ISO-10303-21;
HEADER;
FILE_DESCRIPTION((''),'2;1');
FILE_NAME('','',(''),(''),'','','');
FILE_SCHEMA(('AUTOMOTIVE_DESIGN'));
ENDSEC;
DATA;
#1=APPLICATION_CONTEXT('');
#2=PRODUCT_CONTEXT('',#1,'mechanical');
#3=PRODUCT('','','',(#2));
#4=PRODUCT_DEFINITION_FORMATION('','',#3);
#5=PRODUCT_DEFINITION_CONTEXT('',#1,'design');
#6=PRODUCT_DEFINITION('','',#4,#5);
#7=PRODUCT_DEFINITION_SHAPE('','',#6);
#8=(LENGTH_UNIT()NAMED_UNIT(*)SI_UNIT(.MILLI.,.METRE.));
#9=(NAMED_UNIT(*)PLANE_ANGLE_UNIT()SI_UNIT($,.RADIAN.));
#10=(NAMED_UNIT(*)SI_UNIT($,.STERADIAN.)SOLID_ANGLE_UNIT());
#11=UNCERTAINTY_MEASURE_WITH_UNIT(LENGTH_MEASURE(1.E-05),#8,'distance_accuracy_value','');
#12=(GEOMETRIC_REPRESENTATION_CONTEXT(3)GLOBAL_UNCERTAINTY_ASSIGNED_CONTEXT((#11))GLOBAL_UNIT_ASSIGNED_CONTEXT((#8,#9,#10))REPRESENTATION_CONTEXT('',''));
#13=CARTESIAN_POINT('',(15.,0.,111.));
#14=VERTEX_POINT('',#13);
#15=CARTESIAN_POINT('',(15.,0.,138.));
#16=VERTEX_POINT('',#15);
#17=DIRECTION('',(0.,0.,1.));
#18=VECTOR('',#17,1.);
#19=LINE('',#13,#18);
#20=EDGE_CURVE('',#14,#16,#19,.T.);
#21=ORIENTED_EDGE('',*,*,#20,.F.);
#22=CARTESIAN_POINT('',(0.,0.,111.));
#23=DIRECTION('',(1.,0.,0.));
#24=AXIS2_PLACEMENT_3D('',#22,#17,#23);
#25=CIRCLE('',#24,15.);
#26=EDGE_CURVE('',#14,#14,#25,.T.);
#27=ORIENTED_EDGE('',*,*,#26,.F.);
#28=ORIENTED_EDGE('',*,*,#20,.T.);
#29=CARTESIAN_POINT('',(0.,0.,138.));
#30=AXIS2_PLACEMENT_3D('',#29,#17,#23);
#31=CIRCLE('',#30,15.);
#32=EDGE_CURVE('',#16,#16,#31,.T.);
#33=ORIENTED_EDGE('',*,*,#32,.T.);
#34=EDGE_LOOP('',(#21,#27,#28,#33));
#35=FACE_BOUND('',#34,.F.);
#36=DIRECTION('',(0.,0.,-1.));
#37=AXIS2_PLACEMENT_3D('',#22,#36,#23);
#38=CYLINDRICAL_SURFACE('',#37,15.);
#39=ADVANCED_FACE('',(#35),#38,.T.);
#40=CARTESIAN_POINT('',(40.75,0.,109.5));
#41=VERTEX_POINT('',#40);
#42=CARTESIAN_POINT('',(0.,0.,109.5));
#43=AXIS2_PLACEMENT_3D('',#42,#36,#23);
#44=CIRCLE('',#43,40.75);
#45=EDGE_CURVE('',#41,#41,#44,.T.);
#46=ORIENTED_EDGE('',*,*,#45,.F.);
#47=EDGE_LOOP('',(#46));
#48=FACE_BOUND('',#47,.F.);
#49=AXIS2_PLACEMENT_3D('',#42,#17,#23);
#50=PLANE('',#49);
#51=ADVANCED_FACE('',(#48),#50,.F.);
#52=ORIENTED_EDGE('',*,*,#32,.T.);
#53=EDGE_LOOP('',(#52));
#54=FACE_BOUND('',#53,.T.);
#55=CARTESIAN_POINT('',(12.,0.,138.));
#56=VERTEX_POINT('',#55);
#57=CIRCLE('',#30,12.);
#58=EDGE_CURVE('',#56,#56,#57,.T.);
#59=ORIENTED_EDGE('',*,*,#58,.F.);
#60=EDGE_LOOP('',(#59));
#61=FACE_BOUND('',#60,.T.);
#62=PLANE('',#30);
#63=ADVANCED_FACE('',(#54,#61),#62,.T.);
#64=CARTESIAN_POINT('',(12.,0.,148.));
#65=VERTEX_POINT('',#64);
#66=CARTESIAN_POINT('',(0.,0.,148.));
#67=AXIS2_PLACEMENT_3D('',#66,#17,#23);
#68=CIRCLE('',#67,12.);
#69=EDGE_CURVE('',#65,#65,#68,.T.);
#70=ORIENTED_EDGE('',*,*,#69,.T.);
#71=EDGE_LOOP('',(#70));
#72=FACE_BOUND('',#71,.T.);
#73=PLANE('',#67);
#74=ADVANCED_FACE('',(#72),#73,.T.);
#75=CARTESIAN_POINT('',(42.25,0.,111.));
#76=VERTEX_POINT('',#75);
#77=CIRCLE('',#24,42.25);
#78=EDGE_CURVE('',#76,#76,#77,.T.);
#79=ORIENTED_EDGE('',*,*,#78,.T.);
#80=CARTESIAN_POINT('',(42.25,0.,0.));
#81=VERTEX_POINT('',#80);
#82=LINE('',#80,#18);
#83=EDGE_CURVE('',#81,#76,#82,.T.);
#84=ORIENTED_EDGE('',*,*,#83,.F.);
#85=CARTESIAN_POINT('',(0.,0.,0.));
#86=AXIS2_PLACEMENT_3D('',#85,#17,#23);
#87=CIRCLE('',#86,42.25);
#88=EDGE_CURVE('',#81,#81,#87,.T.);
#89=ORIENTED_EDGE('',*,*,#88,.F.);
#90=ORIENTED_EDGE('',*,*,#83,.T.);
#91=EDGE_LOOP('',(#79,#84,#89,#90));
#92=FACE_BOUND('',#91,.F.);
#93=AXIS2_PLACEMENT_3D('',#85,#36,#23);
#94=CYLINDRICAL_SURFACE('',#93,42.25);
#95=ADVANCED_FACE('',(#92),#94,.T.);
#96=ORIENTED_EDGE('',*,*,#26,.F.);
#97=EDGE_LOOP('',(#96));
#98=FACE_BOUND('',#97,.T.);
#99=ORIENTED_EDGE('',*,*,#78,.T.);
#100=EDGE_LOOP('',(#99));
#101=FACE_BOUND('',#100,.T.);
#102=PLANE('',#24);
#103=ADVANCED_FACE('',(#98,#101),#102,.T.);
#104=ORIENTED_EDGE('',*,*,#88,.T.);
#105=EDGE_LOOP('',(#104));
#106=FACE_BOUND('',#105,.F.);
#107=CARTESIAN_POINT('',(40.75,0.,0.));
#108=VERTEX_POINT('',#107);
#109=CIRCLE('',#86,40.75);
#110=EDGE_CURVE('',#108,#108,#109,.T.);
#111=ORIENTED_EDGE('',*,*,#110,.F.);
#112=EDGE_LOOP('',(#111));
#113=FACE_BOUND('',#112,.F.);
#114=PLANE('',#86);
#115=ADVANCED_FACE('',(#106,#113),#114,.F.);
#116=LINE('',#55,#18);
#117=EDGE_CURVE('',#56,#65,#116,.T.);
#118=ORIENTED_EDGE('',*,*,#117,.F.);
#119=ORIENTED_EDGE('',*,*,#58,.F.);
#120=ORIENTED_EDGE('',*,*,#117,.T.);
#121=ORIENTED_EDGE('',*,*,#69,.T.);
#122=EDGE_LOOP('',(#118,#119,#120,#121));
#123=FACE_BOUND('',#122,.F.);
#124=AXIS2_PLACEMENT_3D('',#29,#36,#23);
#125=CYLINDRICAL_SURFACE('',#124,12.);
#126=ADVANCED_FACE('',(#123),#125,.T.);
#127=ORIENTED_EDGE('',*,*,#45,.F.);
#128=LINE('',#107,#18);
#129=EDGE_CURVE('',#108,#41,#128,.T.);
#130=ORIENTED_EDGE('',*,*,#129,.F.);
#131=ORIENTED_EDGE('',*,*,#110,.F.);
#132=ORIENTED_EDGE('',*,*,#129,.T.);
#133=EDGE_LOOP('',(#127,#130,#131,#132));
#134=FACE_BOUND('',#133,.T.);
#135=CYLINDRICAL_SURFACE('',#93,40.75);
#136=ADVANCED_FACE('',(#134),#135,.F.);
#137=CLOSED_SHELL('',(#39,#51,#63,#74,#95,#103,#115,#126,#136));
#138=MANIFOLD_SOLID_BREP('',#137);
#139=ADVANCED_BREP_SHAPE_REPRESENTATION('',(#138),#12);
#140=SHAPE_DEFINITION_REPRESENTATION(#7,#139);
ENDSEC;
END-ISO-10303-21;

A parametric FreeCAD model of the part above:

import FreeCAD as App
import Part
import Sketcher

V = App.Vector
Q = App.Units.Quantity


def faces_at(feature, points):
    """Names of the faces that lie closest to the given points."""
    faces = feature.Shape.Faces
    near = lambda p: min(range(len(faces)), key=lambda i: faces[i].distToShape(Part.Vertex(*p))[0])
    return sorted({f"Face{near(p) + 1}" for p in points})

doc = App.newDocument("Part")
body = doc.addObject("PartDesign::Body", "Body")

sketch1 = body.newObject("Sketcher::SketchObject", "Sketch")
sketch1.AttachmentSupport = (doc.getObject("XY_Plane"), [""])
sketch1.MapMode = "FlatFace"
sketch1.addGeometry(Part.Circle(V(0, 0, 0), V(0, 0, 1), 42), False)
sketch1.addConstraint(Sketcher.Constraint("Coincident", 0, 3, -1, 1))
sketch1.addConstraint(Sketcher.Constraint("Diameter", 0, Q("84.5 mm")))
pad1 = body.newObject("PartDesign::Pad", "Pad")
pad1.Profile = sketch1
pad1.Length = 111
doc.recompute()

thickness = body.newObject("PartDesign::Thickness", "Thickness")
thickness.Base = (pad1, faces_at(pad1, [(0, 0, 0)]))
thickness.Value = 1.5
thickness.Reversed = True
thickness.Join = "Arc"

sketch2 = body.newObject("Sketcher::SketchObject", "Sketch001")
sketch2.AttachmentSupport = (doc.getObject("XY_Plane"), [""])
sketch2.MapMode = "FlatFace"
sketch2.AttachmentOffset = App.Placement(V(0, 0, 111), App.Rotation())
sketch2.addGeometry(Part.Circle(V(0, 0, 0), V(0, 0, 1), 15), False)
sketch2.addConstraint(Sketcher.Constraint("Coincident", 0, 3, -1, 1))
sketch2.addConstraint(Sketcher.Constraint("Diameter", 0, Q("30 mm")))
pad2 = body.newObject("PartDesign::Pad", "Pad001")
pad2.Profile = sketch2
pad2.Length = 27

sketch3 = body.newObject("Sketcher::SketchObject", "Sketch002")
sketch3.AttachmentSupport = (doc.getObject("XY_Plane"), [""])
sketch3.MapMode = "FlatFace"
sketch3.AttachmentOffset = App.Placement(V(0, 0, 138), App.Rotation())
sketch3.addGeometry(Part.Circle(V(0, 0, 0), V(0, 0, 1), 12), False)
sketch3.addConstraint(Sketcher.Constraint("Coincident", 0, 3, -1, 1))
sketch3.addConstraint(Sketcher.Constraint("Diameter", 0, Q("24 mm")))
pad3 = body.newObject("PartDesign::Pad", "Pad002")
pad3.Profile = sketch3
pad3.Length = 10

doc.recompute()
